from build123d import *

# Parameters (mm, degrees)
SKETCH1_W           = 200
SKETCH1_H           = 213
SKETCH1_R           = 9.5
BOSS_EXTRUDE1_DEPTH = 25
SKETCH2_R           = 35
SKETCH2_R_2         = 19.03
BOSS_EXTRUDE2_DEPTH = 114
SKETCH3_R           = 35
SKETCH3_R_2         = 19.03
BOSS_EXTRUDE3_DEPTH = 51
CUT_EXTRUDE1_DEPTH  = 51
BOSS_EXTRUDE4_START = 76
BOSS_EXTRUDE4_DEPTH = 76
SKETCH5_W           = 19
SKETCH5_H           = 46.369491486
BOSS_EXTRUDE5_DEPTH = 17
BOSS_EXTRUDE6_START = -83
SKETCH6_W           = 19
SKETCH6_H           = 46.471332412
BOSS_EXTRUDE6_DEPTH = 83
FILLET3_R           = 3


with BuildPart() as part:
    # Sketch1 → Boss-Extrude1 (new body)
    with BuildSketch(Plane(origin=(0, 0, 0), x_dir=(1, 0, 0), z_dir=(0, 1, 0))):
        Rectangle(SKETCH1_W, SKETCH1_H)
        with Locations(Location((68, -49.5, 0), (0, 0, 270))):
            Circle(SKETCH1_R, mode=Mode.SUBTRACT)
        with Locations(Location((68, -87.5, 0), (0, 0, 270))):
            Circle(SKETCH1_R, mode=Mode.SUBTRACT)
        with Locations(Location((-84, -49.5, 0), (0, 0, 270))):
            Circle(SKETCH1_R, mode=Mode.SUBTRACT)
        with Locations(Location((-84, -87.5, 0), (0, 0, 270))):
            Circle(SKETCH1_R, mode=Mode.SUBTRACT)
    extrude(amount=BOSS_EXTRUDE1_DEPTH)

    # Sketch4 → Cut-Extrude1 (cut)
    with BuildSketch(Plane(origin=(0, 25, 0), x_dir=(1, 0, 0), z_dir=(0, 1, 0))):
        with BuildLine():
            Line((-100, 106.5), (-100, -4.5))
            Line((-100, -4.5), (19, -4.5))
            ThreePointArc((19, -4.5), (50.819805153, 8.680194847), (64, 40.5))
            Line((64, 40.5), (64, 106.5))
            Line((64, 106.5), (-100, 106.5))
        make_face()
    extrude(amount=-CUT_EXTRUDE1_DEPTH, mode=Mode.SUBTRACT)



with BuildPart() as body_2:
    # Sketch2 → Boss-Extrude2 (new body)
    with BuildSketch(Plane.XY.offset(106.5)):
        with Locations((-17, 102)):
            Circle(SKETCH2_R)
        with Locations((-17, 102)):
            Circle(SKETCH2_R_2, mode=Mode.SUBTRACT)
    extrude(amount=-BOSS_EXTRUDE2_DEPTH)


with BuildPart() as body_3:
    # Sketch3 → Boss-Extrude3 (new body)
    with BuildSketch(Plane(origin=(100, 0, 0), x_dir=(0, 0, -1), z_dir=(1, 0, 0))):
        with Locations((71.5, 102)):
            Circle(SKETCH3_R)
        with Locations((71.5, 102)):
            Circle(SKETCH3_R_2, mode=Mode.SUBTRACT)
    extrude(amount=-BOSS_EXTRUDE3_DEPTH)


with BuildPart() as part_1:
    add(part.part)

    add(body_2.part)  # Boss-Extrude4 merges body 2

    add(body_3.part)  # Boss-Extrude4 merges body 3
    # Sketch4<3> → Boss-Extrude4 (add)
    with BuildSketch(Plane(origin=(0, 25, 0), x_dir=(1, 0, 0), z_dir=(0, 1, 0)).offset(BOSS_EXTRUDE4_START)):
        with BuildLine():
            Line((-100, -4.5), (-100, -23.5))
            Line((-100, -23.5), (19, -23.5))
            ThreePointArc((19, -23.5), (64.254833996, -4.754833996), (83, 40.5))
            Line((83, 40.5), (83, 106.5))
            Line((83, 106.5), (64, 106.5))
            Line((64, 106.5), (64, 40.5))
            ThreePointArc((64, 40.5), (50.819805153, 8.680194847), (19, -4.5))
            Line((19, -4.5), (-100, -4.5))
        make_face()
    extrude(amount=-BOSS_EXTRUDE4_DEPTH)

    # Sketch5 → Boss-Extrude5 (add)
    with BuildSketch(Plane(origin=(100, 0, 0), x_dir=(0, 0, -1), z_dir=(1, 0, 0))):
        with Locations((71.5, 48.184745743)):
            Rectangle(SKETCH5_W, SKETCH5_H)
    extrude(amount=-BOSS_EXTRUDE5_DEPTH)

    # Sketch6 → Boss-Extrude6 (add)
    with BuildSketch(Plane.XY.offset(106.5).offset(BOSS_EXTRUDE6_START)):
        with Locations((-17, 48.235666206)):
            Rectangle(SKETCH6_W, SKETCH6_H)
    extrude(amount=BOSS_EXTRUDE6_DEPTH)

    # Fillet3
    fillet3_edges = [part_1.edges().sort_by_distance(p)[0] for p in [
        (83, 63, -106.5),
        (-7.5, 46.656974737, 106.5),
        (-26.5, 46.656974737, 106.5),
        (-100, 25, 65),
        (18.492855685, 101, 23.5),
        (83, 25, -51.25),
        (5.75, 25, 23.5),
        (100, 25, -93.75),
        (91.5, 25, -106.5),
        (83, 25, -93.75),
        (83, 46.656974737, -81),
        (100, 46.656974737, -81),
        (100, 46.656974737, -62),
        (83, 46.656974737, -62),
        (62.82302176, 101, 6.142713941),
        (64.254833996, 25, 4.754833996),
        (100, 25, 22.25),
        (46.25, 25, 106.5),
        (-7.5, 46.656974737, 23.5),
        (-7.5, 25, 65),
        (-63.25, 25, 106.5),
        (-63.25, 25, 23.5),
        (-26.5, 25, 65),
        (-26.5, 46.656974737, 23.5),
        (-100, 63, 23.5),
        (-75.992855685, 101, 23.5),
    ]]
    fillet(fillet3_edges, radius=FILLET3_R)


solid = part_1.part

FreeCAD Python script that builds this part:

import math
import FreeCAD as App
import Part
import Sketcher

V = App.Vector
Q = App.Units.Quantity


def edges_at(feature, points):
    """Names of the edges that pass closest to the given points."""
    edges = feature.Shape.Edges
    near = lambda p: min(range(len(edges)), key=lambda i: edges[i].distToShape(Part.Vertex(*p))[0])
    return sorted({f"Edge{near(p) + 1}" for p in points})

doc = App.newDocument("Part")
params = doc.addObject("Spreadsheet::Sheet", "Params")
for row, (alias, value) in enumerate([
    ("sketch1_diameter", "19 mm"),
    ("sketch1_width", "200 mm"),
    ("sketch1_height", "213 mm"),
    ("pad1_length", "25 mm"),
    ("sketch2_radius", "45 mm"),
    ("sketch2_width", "119 mm"),
    ("sketch2_height", "111 mm"),
    ("pocket1_length", "51 mm"),
    ("sketch3_diameter", "70 mm"),
    ("sketch3_diameter2", "38.06 mm"),
    ("pad2_length", "114 mm"),
    ("sketch4_diameter", "70 mm"),
    ("sketch4_diameter2", "38.06 mm"),
    ("pad3_length", "51 mm"),
    ("sketch5_radius", "64 mm"),
    ("sketch5_radius2", "45 mm"),
    ("sketch5_width", "119 mm"),
    ("sketch5_height", "66 mm"),
    ("pad4_length", "76 mm"),
    ("sketch6_height", "19 mm"),
    ("pad5_length", "17 mm"),
    ("sketch7_width", "19 mm"),
    ("pad6_length", "83 mm"),
    ("fillet_radius", "3 mm"),
], start=1):
    params.set(f"A{row}", alias)
    params.set(f"B{row}", "=" + value)
    params.setAlias(f"B{row}", alias)

body = doc.addObject("PartDesign::Body", "Body")

sketch1 = body.newObject("Sketcher::SketchObject", "Sketch")
sketch1.AttachmentSupport = (doc.getObject("XZ_Plane"), [""])
sketch1.MapMode = "FlatFace"
sketch1.addGeometry([
    Part.LineSegment(V(-100, -106.5, 0), V(-100, 106.5, 0)),
    Part.LineSegment(V(-100, 106.5, 0), V(100, 106.5, 0)),
    Part.LineSegment(V(100, 106.5, 0), V(100, -106.5, 0)),
    Part.LineSegment(V(100, -106.5, 0), V(-100, -106.5, 0)),
    Part.Circle(V(-84, 87.5, 0), V(0, 0, 1), 9.5),
    Part.Circle(V(68, 87.5, 0), V(0, 0, 1), 9.5),
    Part.Circle(V(-84, 49.5, 0), V(0, 0, 1), 9.5),
    Part.Circle(V(68, 49.5, 0), V(0, 0, 1), 9.5),
], False)
sketch1.addConstraint([
    Sketcher.Constraint("Coincident", 0, 2, 1, 1),
    Sketcher.Constraint("Coincident", 1, 2, 2, 1),
    Sketcher.Constraint("Coincident", 2, 2, 3, 1),
    Sketcher.Constraint("Coincident", 3, 2, 0, 1),
    Sketcher.Constraint("Vertical", 0),
    Sketcher.Constraint("Horizontal", 1),
    Sketcher.Constraint("Vertical", 2),
    Sketcher.Constraint("Horizontal", 3),
    Sketcher.Constraint("Equal", 4, 5),
    Sketcher.Constraint("Equal", 5, 6),
    Sketcher.Constraint("Equal", 6, 7),
    Sketcher.Constraint("Symmetric", 0, 2, 2, 2, -1, 1),
    Sketcher.Constraint("Horizontal", 4, 3, 5, 3),
    Sketcher.Constraint("Horizontal", 6, 3, 7, 3),
    Sketcher.Constraint("Vertical", 4, 3, 6, 3),
    Sketcher.Constraint("Vertical", 5, 3, 7, 3),
    Sketcher.Constraint("Diameter", 4, Q("19 mm")),
    Sketcher.Constraint("DistanceX", 1, 1, 1, 2, Q("200 mm")),
    Sketcher.Constraint("DistanceY", 0, 1, 0, 2, Q("213 mm")),
    Sketcher.Constraint("DistanceX", 4, 3, -1, 1, Q("84 mm")),
    Sketcher.Constraint("DistanceX", -1, 1, 5, 3, Q("68 mm")),
    Sketcher.Constraint("DistanceY", 6, 3, 4, 3, Q("38 mm")),
    Sketcher.Constraint("DistanceY", 4, 3, 0, 2, Q("19 mm")),
])
sketch1.setExpression("Constraints[16]", "Params.sketch1_diameter")
sketch1.setExpression("Constraints[17]", "Params.sketch1_width")
sketch1.setExpression("Constraints[18]", "Params.sketch1_height")
pad1 = body.newObject("PartDesign::Pad", "Pad")
pad1.Profile = sketch1
pad1.setExpression("Length", "Params.pad1_length")
pad1.Reversed = True

sketch2 = body.newObject("Sketcher::SketchObject", "Sketch001")
sketch2.AttachmentSupport = (doc.getObject("XZ_Plane"), [""])
sketch2.MapMode = "FlatFace"
sketch2.AttachmentOffset = App.Placement(V(0, 0, -25), App.Rotation())
sketch2.addGeometry([
    Part.LineSegment(V(-100, -106.5, 0), V(-100, 4.5, 0)),
    Part.LineSegment(V(-100, 4.5, 0), V(19, 4.5, 0)),
    Part.ArcOfCircle(Part.Circle(V(19, -40.5, 0), V(0, 0, 1), 45), math.radians(0), math.radians(90)),
    Part.LineSegment(V(64, -40.5, 0), V(64, -106.5, 0)),
    Part.LineSegment(V(64, -106.5, 0), V(-100, -106.5, 0)),
], False)
sketch2.addConstraint([
    Sketcher.Constraint("Coincident", 0, 2, 1, 1),
    Sketcher.Constraint("Tangent", 1, 2, 2, 2),
    Sketcher.Constraint("Tangent", 2, 1, 3, 1),
    Sketcher.Constraint("Coincident", 3, 2, 4, 1),
    Sketcher.Constraint("Coincident", 4, 2, 0, 1),
    Sketcher.Constraint("Vertical", 0),
    Sketcher.Constraint("Horizontal", 1),
    Sketcher.Constraint("Vertical", 3),
    Sketcher.Constraint("Horizontal", 4),
    Sketcher.Constraint("Radius", 2, Q("45 mm")),
    Sketcher.Constraint("DistanceX", 1, 1, 1, 2, Q("119 mm")),
    Sketcher.Constraint("DistanceY", 0, 1, 0, 2, Q("111 mm")),
    Sketcher.Constraint("DistanceX", -1, 1, 2, 3, Q("19 mm")),
    Sketcher.Constraint("DistanceY", 2, 3, -1, 1, Q("40.5 mm")),
])
sketch2.setExpression("Constraints[9]", "Params.sketch2_radius")
sketch2.setExpression("Constraints[10]", "Params.sketch2_width")
sketch2.setExpression("Constraints[11]", "Params.sketch2_height")
pocket1 = body.newObject("PartDesign::Pocket", "Pocket")
pocket1.Profile = sketch2
pocket1.setExpression("Length", "Params.pocket1_length")
pocket1.Reversed = True
body2 = doc.addObject("PartDesign::Body", "Body001")

sketch3 = body2.newObject("Sketcher::SketchObject", "Sketch002")
sketch3.AttachmentSupport = (doc.getObject("XY_Plane001"), [""])
sketch3.MapMode = "FlatFace"
sketch3.AttachmentOffset = App.Placement(V(0, 0, 106.5), App.Rotation())
sketch3.addGeometry([
    Part.Circle(V(-17, 102, 0), V(0, 0, 1), 35),
    Part.Circle(V(-17, 102, 0), V(0, 0, 1), 19.03),
], False)
sketch3.addConstraint([
    Sketcher.Constraint("Coincident", 1, 3, 0, 3),
    Sketcher.Constraint("Diameter", 0, Q("70 mm")),
    Sketcher.Constraint("Diameter", 1, Q("38.06 mm")),
    Sketcher.Constraint("DistanceX", 0, 3, -1, 1, Q("17 mm")),
    Sketcher.Constraint("DistanceY", -1, 1, 0, 3, Q("102 mm")),
])
sketch3.setExpression("Constraints[1]", "Params.sketch3_diameter")
sketch3.setExpression("Constraints[2]", "Params.sketch3_diameter2")
pad2 = body2.newObject("PartDesign::Pad", "Pad001")
pad2.Profile = sketch3
pad2.setExpression("Length", "Params.pad2_length")
pad2.Reversed = True
body3 = doc.addObject("PartDesign::Body", "Body002")

sketch4 = body3.newObject("Sketcher::SketchObject", "Sketch003")
sketch4.AttachmentSupport = (doc.getObject("YZ_Plane002"), [""])
sketch4.MapMode = "FlatFace"
sketch4.AttachmentOffset = App.Placement(V(0, 0, 100), App.Rotation())
sketch4.addGeometry([
    Part.Circle(V(102, -71.5, 0), V(0, 0, 1), 35),
    Part.Circle(V(102, -71.5, 0), V(0, 0, 1), 19.03),
], False)
sketch4.addConstraint([
    Sketcher.Constraint("Coincident", 1, 3, 0, 3),
    Sketcher.Constraint("Diameter", 0, Q("70 mm")),
    Sketcher.Constraint("Diameter", 1, Q("38.06 mm")),
    Sketcher.Constraint("DistanceX", -1, 1, 0, 3, Q("102 mm")),
    Sketcher.Constraint("DistanceY", 0, 3, -1, 1, Q("71.5 mm")),
])
sketch4.setExpression("Constraints[1]", "Params.sketch4_diameter")
sketch4.setExpression("Constraints[2]", "Params.sketch4_diameter2")
pad3 = body3.newObject("PartDesign::Pad", "Pad002")
pad3.Profile = sketch4
pad3.setExpression("Length", "Params.pad3_length")
pad3.Reversed = True
body.AllowCompound = True
doc.recompute()

boolean = body.newObject("PartDesign::Boolean", "Boolean")
boolean.Type = "Fuse"
boolean.addObjects([body2])
doc.recompute()

boolean2 = body.newObject("PartDesign::Boolean", "Boolean001")
boolean2.Type = "Fuse"
boolean2.addObjects([body3])

sketch5 = body.newObject("Sketcher::SketchObject", "Sketch004")
sketch5.AttachmentSupport = (doc.getObject("XZ_Plane"), [""])
sketch5.MapMode = "FlatFace"
sketch5.AttachmentOffset = App.Placement(V(0, 0, -101), App.Rotation())
sketch5.addGeometry([
    Part.LineSegment(V(-100, 4.5, 0), V(-100, 23.5, 0)),
    Part.LineSegment(V(-100, 23.5, 0), V(19, 23.5, 0)),
    Part.ArcOfCircle(Part.Circle(V(19, -40.5, 0), V(0, 0, 1), 64), math.radians(0), math.radians(90)),
    Part.LineSegment(V(83, -40.5, 0), V(83, -106.5, 0)),
    Part.LineSegment(V(83, -106.5, 0), V(64, -106.5, 0)),
    Part.LineSegment(V(64, -106.5, 0), V(64, -40.5, 0)),
    Part.ArcOfCircle(Part.Circle(V(19, -40.5, 0), V(0, 0, 1), 45), math.radians(0), math.radians(90)),
    Part.LineSegment(V(19, 4.5, 0), V(-100, 4.5, 0)),
], False)
sketch5.addConstraint([
    Sketcher.Constraint("Coincident", 0, 2, 1, 1),
    Sketcher.Constraint("Tangent", 1, 2, 2, 2),
    Sketcher.Constraint("Tangent", 2, 1, 3, 1),
    Sketcher.Constraint("Coincident", 3, 2, 4, 1),
    Sketcher.Constraint("Coincident", 4, 2, 5, 1),
    Sketcher.Constraint("Tangent", 5, 2, 6, 1),
    Sketcher.Constraint("Tangent", 6, 2, 7, 1),
    Sketcher.Constraint("Coincident", 7, 2, 0, 1),
    Sketcher.Constraint("Vertical", 0),
    Sketcher.Constraint("Horizontal", 1),
    Sketcher.Constraint("Vertical", 3),
    Sketcher.Constraint("Horizontal", 4),
    Sketcher.Constraint("Vertical", 5),
    Sketcher.Constraint("Horizontal", 7),
    Sketcher.Constraint("Coincident", 6, 3, 2, 3),
    Sketcher.Constraint("Radius", 2, Q("64 mm")),
    Sketcher.Constraint("Radius", 6, Q("45 mm")),
    Sketcher.Constraint("DistanceX", 1, 1, 1, 2, Q("119 mm")),
    Sketcher.Constraint("DistanceY", 3, 2, 3, 1, Q("66 mm")),
    Sketcher.Constraint("DistanceX", -1, 1, 2, 3, Q("19 mm")),
    Sketcher.Constraint("DistanceY", 2, 3, -1, 1, Q("40.5 mm")),
])
sketch5.setExpression("Constraints[15]", "Params.sketch5_radius")
sketch5.setExpression("Constraints[16]", "Params.sketch5_radius2")
sketch5.setExpression("Constraints[17]", "Params.sketch5_width")
sketch5.setExpression("Constraints[18]", "Params.sketch5_height")
pad4 = body.newObject("PartDesign::Pad", "Pad003")
pad4.Profile = sketch5
pad4.setExpression("Length", "Params.pad4_length")

sketch6 = body.newObject("Sketcher::SketchObject", "Sketch005")
sketch6.AttachmentSupport = (doc.getObject("YZ_Plane"), [""])
sketch6.MapMode = "FlatFace"
sketch6.AttachmentOffset = App.Placement(V(0, 0, 100), App.Rotation())
sketch6.addGeometry([
    Part.LineSegment(V(71.369491, -62, 0), V(25, -62, 0)),
    Part.LineSegment(V(25, -62, 0), V(25, -81, 0)),
    Part.LineSegment(V(25, -81, 0), V(71.369491, -81, 0)),
    Part.LineSegment(V(71.369491, -81, 0), V(71.369491, -62, 0)),
], False)
sketch6.addConstraint([
    Sketcher.Constraint("Coincident", 0, 2, 1, 1),
    Sketcher.Constraint("Coincident", 1, 2, 2, 1),
    Sketcher.Constraint("Coincident", 2, 2, 3, 1),
    Sketcher.Constraint("Coincident", 3, 2, 0, 1),
    Sketcher.Constraint("Horizontal", 0),
    Sketcher.Constraint("Vertical", 1),
    Sketcher.Constraint("Horizontal", 2),
    Sketcher.Constraint("Vertical", 3),
    Sketcher.Constraint("DistanceY", 1, 2, 1, 1, Q("19 mm")),
    Sketcher.Constraint("DistanceX", -1, 1, 0, 2, Q("25 mm")),
    Sketcher.Constraint("DistanceY", 0, 2, -1, 1, Q("62 mm")),
    Sketcher.Constraint("DistanceX", 0, 2, 0, 1, Q("46.369491 mm")),
])
sketch6.setExpression("Constraints[8]", "Params.sketch6_height")
pad5 = body.newObject("PartDesign::Pad", "Pad004")
pad5.Profile = sketch6
pad5.setExpression("Length", "Params.pad5_length")
pad5.Reversed = True

sketch7 = body.newObject("Sketcher::SketchObject", "Sketch006")
sketch7.AttachmentSupport = (doc.getObject("XY_Plane"), [""])
sketch7.MapMode = "FlatFace"
sketch7.AttachmentOffset = App.Placement(V(0, 0, 23.5), App.Rotation())
sketch7.addGeometry([
    Part.LineSegment(V(-26.5, 71.471332, 0), V(-26.5, 25, 0)),
    Part.LineSegment(V(-26.5, 25, 0), V(-7.5, 25, 0)),
    Part.LineSegment(V(-7.5, 25, 0), V(-7.5, 71.471332, 0)),
    Part.LineSegment(V(-7.5, 71.471332, 0), V(-26.5, 71.471332, 0)),
], False)
sketch7.addConstraint([
    Sketcher.Constraint("Coincident", 0, 2, 1, 1),
    Sketcher.Constraint("Coincident", 1, 2, 2, 1),
    Sketcher.Constraint("Coincident", 2, 2, 3, 1),
    Sketcher.Constraint("Coincident", 3, 2, 0, 1),
    Sketcher.Constraint("Vertical", 0),
    Sketcher.Constraint("Horizontal", 1),
    Sketcher.Constraint("Vertical", 2),
    Sketcher.Constraint("Horizontal", 3),
    Sketcher.Constraint("DistanceX", 1, 1, 1, 2, Q("19 mm")),
    Sketcher.Constraint("DistanceY", -1, 1, 0, 2, Q("25 mm")),
    Sketcher.Constraint("DistanceX", 0, 2, -1, 1, Q("26.5 mm")),
    Sketcher.Constraint("DistanceY", 0, 2, 0, 1, Q("46.471332 mm")),
])
sketch7.setExpression("Constraints[8]", "Params.sketch7_width")
pad6 = body.newObject("PartDesign::Pad", "Pad005")
pad6.Profile = sketch7
pad6.setExpression("Length", "Params.pad6_length")
doc.recompute()

fillet = body.newObject("PartDesign::Fillet", "Fillet")
fillet.Base = (pad6, edges_at(pad6, [
    (83, 63, -106.5),
    (-7.5, 46.657, 106.5),
    (-26.5, 46.657, 106.5),
    (-100, 25, 65),
    (18.493, 101, 23.5),
    (83, 25, -51.25),
    (5.75, 25, 23.5),
    (100, 25, -93.75),
    (91.5, 25, -106.5),
    (83, 25, -93.75),
    (83, 46.657, -81),
    (100, 46.657, -81),
    (100, 46.657, -62),
    (83, 46.657, -62),
    (62.823, 101, 6.143),
    (64.255, 25, 4.755),
    (100, 25, 22.25),
    (46.25, 25, 106.5),
    (-7.5, 46.657, 23.5),
    (-7.5, 25, 65),
    (-63.25, 25, 106.5),
    (-63.25, 25, 23.5),
    (-26.5, 25, 65),
    (-26.5, 46.657, 23.5),
    (-100, 63, 23.5),
    (-75.993, 101, 23.5),
]))
fillet.setExpression("Radius", "Params.fillet_radius")

doc.recompute()
